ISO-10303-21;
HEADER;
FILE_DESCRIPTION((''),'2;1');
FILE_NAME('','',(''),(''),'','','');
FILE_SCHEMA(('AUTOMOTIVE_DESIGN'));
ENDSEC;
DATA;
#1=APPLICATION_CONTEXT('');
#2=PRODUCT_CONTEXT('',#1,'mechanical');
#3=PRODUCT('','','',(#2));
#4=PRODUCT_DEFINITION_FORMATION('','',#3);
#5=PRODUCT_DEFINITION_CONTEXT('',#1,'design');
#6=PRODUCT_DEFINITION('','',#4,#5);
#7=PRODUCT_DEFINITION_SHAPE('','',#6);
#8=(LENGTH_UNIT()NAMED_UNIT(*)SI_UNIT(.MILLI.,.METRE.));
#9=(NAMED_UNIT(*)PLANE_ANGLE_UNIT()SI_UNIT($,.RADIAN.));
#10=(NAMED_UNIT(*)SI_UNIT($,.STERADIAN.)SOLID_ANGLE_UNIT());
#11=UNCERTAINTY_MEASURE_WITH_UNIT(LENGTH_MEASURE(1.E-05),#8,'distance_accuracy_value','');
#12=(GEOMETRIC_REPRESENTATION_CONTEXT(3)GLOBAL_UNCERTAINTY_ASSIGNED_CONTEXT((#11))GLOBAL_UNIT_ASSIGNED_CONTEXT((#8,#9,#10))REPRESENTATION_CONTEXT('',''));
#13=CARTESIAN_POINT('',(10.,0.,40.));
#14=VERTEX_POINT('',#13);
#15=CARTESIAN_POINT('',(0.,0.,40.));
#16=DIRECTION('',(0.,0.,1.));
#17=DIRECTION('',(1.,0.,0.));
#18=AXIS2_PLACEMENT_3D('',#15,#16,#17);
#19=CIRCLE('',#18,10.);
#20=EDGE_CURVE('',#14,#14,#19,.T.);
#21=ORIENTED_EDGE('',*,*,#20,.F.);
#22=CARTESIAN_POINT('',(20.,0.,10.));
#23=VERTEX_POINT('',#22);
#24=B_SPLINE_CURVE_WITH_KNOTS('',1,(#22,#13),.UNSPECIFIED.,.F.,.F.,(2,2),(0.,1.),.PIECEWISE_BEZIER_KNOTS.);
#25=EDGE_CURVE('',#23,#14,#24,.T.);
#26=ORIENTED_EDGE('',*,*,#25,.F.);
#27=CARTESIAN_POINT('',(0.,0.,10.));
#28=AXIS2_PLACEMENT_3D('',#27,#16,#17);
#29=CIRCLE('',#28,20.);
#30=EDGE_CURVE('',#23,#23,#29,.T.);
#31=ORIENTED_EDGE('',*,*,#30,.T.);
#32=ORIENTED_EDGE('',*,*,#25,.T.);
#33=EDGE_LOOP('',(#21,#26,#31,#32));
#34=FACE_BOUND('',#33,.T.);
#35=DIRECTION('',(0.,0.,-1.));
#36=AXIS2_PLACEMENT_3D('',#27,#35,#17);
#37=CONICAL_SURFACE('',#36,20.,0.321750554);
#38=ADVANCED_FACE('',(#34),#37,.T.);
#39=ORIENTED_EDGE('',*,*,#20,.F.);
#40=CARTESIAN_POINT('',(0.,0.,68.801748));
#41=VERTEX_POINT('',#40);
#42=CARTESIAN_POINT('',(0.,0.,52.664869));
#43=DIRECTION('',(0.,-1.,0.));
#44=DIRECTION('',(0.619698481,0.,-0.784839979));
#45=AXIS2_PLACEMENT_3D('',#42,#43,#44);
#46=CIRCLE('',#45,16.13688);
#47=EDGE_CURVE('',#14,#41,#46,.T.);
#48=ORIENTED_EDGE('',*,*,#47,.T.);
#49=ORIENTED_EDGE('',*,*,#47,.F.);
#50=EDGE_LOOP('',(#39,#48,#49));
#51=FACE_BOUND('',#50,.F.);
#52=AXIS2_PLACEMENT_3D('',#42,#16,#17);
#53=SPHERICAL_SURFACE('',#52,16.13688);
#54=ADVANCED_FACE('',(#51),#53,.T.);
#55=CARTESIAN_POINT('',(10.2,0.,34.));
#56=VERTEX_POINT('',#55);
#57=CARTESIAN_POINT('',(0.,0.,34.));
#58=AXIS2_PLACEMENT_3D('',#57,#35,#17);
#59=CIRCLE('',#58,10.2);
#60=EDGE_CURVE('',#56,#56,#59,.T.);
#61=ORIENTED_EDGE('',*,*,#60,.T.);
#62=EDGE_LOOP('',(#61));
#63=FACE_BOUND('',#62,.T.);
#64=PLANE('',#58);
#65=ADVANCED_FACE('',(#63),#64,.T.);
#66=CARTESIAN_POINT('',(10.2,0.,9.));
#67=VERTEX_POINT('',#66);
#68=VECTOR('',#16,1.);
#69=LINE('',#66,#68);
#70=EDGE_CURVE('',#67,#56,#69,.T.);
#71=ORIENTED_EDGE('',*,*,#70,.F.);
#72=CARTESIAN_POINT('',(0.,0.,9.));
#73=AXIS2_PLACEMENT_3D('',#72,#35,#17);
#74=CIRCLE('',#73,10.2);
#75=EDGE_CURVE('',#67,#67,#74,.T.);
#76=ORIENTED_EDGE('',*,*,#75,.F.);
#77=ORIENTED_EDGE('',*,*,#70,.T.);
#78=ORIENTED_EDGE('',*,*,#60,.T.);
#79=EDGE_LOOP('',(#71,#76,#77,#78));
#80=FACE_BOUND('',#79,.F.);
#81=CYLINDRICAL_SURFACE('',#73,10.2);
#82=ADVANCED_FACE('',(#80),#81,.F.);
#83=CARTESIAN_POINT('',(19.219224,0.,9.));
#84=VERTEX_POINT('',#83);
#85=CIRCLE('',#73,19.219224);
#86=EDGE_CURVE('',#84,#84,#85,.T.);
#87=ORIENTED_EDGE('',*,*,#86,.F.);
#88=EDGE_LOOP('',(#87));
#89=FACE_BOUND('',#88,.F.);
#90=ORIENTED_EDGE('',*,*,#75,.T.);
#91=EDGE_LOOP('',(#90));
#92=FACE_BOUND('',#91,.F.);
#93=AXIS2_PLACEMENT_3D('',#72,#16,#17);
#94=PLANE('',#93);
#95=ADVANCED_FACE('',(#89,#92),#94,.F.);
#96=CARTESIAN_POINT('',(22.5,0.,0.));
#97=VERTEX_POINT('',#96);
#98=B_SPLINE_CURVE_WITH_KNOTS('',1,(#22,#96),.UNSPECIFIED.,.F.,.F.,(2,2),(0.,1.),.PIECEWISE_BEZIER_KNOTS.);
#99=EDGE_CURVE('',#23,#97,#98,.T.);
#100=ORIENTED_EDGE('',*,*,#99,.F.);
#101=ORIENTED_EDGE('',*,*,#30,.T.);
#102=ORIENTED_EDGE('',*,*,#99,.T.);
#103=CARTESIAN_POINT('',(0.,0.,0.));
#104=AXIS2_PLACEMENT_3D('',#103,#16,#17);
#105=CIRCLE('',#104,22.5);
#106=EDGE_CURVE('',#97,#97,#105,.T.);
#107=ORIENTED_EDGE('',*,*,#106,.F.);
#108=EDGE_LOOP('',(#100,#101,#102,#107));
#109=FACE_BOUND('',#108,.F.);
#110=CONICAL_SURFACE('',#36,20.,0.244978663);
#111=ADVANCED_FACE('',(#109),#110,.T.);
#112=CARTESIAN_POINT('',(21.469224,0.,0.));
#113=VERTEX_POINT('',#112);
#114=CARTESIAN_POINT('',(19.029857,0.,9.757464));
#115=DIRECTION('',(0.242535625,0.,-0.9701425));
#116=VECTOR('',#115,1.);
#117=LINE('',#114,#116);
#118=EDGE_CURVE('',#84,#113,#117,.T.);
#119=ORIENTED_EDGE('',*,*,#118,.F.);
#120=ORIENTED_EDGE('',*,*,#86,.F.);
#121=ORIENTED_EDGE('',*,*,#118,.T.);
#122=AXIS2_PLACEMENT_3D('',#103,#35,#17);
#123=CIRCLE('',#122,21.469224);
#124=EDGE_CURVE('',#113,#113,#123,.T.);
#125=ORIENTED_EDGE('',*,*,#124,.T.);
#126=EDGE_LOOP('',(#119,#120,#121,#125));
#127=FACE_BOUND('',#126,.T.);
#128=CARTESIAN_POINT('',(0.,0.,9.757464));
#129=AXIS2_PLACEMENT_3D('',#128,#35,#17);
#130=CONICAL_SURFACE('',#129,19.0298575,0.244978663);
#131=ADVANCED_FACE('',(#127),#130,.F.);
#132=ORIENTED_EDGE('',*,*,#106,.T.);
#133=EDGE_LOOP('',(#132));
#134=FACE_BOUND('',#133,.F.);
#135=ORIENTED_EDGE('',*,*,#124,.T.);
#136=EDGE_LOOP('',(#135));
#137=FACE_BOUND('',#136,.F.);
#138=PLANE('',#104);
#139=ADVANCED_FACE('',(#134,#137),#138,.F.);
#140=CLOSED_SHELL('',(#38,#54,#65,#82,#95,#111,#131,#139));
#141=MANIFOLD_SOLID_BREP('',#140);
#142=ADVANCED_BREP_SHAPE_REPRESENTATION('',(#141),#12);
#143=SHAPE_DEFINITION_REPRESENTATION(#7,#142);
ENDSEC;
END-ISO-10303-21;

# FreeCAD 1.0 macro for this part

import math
import FreeCAD as App
import Part
import Sketcher

V = App.Vector
Q = App.Units.Quantity


def faces_at(feature, points):
    """Names of the faces that lie closest to the given points."""
    faces = feature.Shape.Faces
    near = lambda p: min(range(len(faces)), key=lambda i: faces[i].distToShape(Part.Vertex(*p))[0])
    return sorted({f"Face{near(p) + 1}" for p in points})

doc = App.newDocument("Part")
body = doc.addObject("PartDesign::Body", "Body")

# Sketch on XY plane
sketch1 = body.newObject("Sketcher::SketchObject", "Sketch")
sketch1.AttachmentSupport = (doc.getObject("XY_Plane"), [""])
sketch1.MapMode = "FlatFace"
sketch1.AttachmentOffset = App.Placement(V(0, 0, 10), App.Rotation())
sketch1.addGeometry(Part.Circle(V(0, 0, 0), V(0, 0, 1), 20), False)
sketch1.addConstraint([
    Sketcher.Constraint("Coincident", 0, 3, -1, 1),
    Sketcher.Constraint("Diameter", 0, Q("40 mm")),
])

# Sketch on XY plane
sketch2 = body.newObject("Sketcher::SketchObject", "Sketch001")
sketch2.AttachmentSupport = (doc.getObject("XY_Plane"), [""])
sketch2.MapMode = "FlatFace"
sketch2.addGeometry(Part.Circle(V(0, 0, 0), V(0, 0, 1), 22), False)
sketch2.addConstraint([
    Sketcher.Constraint("Coincident", 0, 3, -1, 1),
    Sketcher.Constraint("Diameter", 0, Q("45 mm")),
])

additiveloft = body.newObject("PartDesign::AdditiveLoft", "AdditiveLoft")
additiveloft.Profile = sketch1
additiveloft.Sections = [sketch2]
doc.recompute()

thickness = body.newObject("PartDesign::Thickness", "Thickness")
thickness.Base = (additiveloft, faces_at(additiveloft, [(0, 0, 0)]))
thickness.Value = 1
thickness.Reversed = True
thickness.Join = "Intersection"

# Sketch on XY plane
sketch3 = body.newObject("Sketcher::SketchObject", "Sketch002")
sketch3.AttachmentSupport = (doc.getObject("XY_Plane"), [""])
sketch3.MapMode = "FlatFace"
sketch3.AttachmentOffset = App.Placement(V(0, 0, 10), App.Rotation())
sketch3.addGeometry(Part.Circle(V(0, 0, 0), V(0, 0, 1), 20), False)
sketch3.addConstraint([
    Sketcher.Constraint("Coincident", 0, 3, -1, 1),
    Sketcher.Constraint("Diameter", 0, Q("40 mm")),
])

# Sketch on XY plane
sketch4 = body.newObject("Sketcher::SketchObject", "Sketch003")
sketch4.AttachmentSupport = (doc.getObject("XY_Plane"), [""])
sketch4.MapMode = "FlatFace"
sketch4.AttachmentOffset = App.Placement(V(0, 0, 40), App.Rotation())
sketch4.addGeometry(Part.Circle(V(0, 0, 0), V(0, 0, 1), 10), False)
sketch4.addConstraint([
    Sketcher.Constraint("Coincident", 0, 3, -1, 1),
    Sketcher.Constraint("Diameter", 0, Q("20 mm")),
])

additiveloft2 = body.newObject("PartDesign::AdditiveLoft", "AdditiveLoft001")
additiveloft2.Profile = sketch3
additiveloft2.Sections = [sketch4]

# Sketch on XY plane
sketch5 = body.newObject("Sketcher::SketchObject", "Sketch004")
sketch5.AttachmentSupport = (doc.getObject("XY_Plane"), [""])
sketch5.MapMode = "FlatFace"
sketch5.AttachmentOffset = App.Placement(V(0, 0, 9), App.Rotation())
sketch5.addGeometry(Part.Circle(V(0, 0, 0), V(0, 0, 1), 10), False)
sketch5.addConstraint([
    Sketcher.Constraint("Coincident", 0, 3, -1, 1),
    Sketcher.Constraint("Diameter", 0, Q("20.4 mm")),
])
pocket1 = body.newObject("PartDesign::Pocket", "Pocket")
pocket1.Profile = sketch5
pocket1.Length = 25
pocket1.Reversed = True

# Sketch on XZ plane
sketch6 = body.newObject("Sketcher::SketchObject", "Sketch005")
sketch6.AttachmentSupport = (doc.getObject("XZ_Plane"), [""])
sketch6.MapMode = "FlatFace"
sketch6.addGeometry([
    Part.LineSegment(V(0, 69, 0), V(0, 40, 0)),
    Part.LineSegment(V(0, 40, 0), V(10, 40, 0)),
    Part.ArcOfCircle(Part.Circle(V(0, 53, 0), V(0, 0, 1), 16), math.radians(-52), math.radians(90)),
], False)
sketch6.addConstraint([
    Sketcher.Constraint("Coincident", 0, 2, 1, 1),
    Sketcher.Constraint("Coincident", 1, 2, 2, 1),
    Sketcher.Constraint("Coincident", 2, 2, 0, 1),
    Sketcher.Constraint("Vertical", 0),
    Sketcher.Constraint("Horizontal", 1),
    Sketcher.Constraint("PointOnObject", 2, 3, -2),
    Sketcher.Constraint("PointOnObject", 0, 2, -2),
    Sketcher.Constraint("DistanceX", 1, 1, 1, 2, Q("10 mm")),
    Sketcher.Constraint("DistanceY", -1, 1, 0, 2, Q("40 mm")),
    Sketcher.Constraint("Radius", 2, Q("16.13688 mm")),
])
revolution = body.newObject("PartDesign::Revolution", "Revolution")
revolution.Profile = sketch6
revolution.ReferenceAxis = (sketch6, ["V_Axis"])
revolution.Angle = 360

doc.recompute()
